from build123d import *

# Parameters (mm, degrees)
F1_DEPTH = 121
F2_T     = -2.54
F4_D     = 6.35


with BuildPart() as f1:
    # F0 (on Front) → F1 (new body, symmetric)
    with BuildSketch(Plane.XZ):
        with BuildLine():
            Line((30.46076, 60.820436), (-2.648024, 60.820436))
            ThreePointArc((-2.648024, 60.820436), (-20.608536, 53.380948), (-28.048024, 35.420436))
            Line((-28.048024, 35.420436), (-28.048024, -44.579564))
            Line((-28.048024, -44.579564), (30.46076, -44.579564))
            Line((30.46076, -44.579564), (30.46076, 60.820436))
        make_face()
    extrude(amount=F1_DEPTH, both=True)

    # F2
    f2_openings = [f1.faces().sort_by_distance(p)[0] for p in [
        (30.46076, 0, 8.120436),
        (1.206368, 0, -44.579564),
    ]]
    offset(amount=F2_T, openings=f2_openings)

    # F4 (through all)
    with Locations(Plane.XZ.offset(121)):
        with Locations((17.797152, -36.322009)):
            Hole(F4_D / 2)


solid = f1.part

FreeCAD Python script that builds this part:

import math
import FreeCAD as App
import Part
import Sketcher

V = App.Vector
Q = App.Units.Quantity


def faces_at(feature, points):
    """Names of the faces that lie closest to the given points."""
    faces = feature.Shape.Faces
    near = lambda p: min(range(len(faces)), key=lambda i: faces[i].distToShape(Part.Vertex(*p))[0])
    return sorted({f"Face{near(p) + 1}" for p in points})

doc = App.newDocument("Part")
body = doc.addObject("PartDesign::Body", "Body")

# Sketch on XZ plane
sketch1 = body.newObject("Sketcher::SketchObject", "Sketch")
sketch1.AttachmentSupport = (doc.getObject("XZ_Plane"), [""])
sketch1.MapMode = "FlatFace"
sketch1.addGeometry([
    Part.LineSegment(V(30, 61, 0), V(-3, 61, 0)),  # 0
    Part.ArcOfCircle(Part.Circle(V(-3, 35, 0), V(0, 0, 1), 25), math.radians(90), math.radians(180)),  # 1
    Part.LineSegment(V(-28, 35, 0), V(-28, -45, 0)),  # 2
    Part.LineSegment(V(-28, -45, 0), V(30, -45, 0)),  # 3
    Part.LineSegment(V(30, -45, 0), V(30, 61, 0)),  # 4
], False)
sketch1.addConstraint([
    Sketcher.Constraint("Tangent", 0, 2, 1, 1),
    Sketcher.Constraint("Tangent", 1, 2, 2, 1),
    Sketcher.Constraint("Coincident", 2, 2, 3, 1),
    Sketcher.Constraint("Coincident", 3, 2, 4, 1),
    Sketcher.Constraint("Coincident", 4, 2, 0, 1),
    Sketcher.Constraint("Horizontal", 0),
    Sketcher.Constraint("Vertical", 2),
    Sketcher.Constraint("Horizontal", 3),
    Sketcher.Constraint("Vertical", 4),
    Sketcher.Constraint("Radius", 1, Q("25.400001 mm")),
    Sketcher.Constraint("DistanceY", 2, 2, 2, 1, Q("80 mm")),
    Sketcher.Constraint("DistanceX", 0, 2, 0, 1, Q("33.108784 mm")),
    Sketcher.Constraint("DistanceX", -1, 1, 3, 2, Q("30.46076 mm")),
    Sketcher.Constraint("DistanceY", -1, 1, 1, 3, Q("35.420435 mm")),
])
pad1 = body.newObject("PartDesign::Pad", "Pad")
pad1.Profile = sketch1
pad1.Length = 242
pad1.Midplane = True
doc.recompute()

thickness = body.newObject("PartDesign::Thickness", "Thickness")
thickness.Base = (pad1, faces_at(pad1, [(30.461, 0, 8.12), (1.206, 0, -44.58)]))
thickness.Value = 2.54
thickness.Reversed = True
thickness.Join = "Arc"

# Sketch on XZ plane
sketch2 = body.newObject("Sketcher::SketchObject", "Sketch001")
sketch2.AttachmentSupport = (doc.getObject("XZ_Plane"), [""])
sketch2.MapMode = "FlatFace"
sketch2.AttachmentOffset = App.Placement(V(0, 0, 121), App.Rotation())
sketch2.addGeometry(Part.Circle(V(17.8, -36.3, 0), V(0, 0, 1), 3.2), False)
sketch2.addConstraint([
    Sketcher.Constraint("Diameter", 0, Q("6.35 mm")),
    Sketcher.Constraint("DistanceY", 0, 3, -1, 1, Q("36.322009 mm")),
    Sketcher.Constraint("DistanceX", -1, 1, 0, 3, Q("17.797152 mm")),
])
doc.recompute()
hole = body.newObject("PartDesign::Hole", "Hole")
hole.Profile = sketch2
hole.ThreadType = "None"
hole.Diameter = 6.35
hole.DepthType = "ThroughAll"

doc.recompute()
